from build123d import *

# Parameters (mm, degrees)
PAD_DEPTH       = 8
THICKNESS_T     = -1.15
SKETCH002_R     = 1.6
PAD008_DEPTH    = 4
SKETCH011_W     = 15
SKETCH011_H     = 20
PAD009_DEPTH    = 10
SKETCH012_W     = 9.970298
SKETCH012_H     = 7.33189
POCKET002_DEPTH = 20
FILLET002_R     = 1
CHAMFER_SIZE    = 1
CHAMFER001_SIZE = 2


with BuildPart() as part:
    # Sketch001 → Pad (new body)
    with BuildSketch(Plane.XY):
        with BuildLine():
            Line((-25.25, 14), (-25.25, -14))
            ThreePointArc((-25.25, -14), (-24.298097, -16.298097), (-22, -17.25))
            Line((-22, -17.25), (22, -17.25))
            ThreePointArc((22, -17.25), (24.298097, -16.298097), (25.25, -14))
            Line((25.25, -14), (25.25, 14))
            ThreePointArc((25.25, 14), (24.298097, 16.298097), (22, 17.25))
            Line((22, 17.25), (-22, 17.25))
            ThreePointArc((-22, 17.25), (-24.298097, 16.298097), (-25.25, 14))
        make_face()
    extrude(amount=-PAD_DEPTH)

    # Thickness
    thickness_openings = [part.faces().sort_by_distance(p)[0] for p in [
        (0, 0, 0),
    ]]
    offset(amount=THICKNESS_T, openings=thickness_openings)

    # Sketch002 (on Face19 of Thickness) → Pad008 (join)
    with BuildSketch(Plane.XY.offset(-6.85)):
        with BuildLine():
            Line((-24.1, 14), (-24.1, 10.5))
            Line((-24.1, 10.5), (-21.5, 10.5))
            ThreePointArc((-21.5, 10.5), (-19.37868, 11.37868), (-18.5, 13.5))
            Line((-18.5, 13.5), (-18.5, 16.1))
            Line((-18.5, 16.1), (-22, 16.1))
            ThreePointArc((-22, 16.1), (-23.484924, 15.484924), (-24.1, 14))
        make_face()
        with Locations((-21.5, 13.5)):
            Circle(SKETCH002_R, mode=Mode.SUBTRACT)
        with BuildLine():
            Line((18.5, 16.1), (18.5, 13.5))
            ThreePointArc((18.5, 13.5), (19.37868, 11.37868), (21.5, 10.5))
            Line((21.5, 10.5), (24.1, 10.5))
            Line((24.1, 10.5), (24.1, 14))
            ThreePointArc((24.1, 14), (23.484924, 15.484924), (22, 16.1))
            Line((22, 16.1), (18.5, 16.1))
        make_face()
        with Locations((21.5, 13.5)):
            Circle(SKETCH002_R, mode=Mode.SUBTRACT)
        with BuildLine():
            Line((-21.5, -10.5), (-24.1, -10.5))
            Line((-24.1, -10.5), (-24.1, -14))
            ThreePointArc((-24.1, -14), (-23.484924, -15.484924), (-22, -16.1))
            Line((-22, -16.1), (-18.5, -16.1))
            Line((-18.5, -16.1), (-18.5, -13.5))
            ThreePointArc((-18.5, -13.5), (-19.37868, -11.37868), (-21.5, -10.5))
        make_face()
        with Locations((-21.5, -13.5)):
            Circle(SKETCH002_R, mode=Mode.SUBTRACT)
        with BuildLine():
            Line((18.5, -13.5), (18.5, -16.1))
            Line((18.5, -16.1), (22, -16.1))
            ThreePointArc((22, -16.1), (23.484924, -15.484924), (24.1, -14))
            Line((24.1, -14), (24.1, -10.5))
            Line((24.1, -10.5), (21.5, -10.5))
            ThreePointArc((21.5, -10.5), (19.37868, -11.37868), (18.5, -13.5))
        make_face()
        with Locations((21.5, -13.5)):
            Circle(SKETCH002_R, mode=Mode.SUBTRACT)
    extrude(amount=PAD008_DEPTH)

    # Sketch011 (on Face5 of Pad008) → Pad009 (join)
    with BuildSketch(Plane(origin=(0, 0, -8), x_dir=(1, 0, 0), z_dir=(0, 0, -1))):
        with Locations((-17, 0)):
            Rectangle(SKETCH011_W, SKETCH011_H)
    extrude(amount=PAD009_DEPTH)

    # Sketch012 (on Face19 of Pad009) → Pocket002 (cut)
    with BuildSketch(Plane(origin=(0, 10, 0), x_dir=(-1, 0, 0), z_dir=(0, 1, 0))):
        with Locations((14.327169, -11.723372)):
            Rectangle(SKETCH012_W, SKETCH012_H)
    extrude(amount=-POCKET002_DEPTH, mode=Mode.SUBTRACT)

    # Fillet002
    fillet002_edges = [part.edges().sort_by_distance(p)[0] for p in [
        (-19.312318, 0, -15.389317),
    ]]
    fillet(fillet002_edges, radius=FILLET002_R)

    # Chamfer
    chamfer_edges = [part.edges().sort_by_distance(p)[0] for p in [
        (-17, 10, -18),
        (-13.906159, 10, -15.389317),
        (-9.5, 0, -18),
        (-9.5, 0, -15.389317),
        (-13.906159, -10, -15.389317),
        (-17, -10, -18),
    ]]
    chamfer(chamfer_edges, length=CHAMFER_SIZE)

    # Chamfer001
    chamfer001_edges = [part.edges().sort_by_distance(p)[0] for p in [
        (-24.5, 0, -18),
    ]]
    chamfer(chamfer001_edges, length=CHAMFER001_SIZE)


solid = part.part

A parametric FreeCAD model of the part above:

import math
import FreeCAD as App
import Part
import Sketcher


def edges_at(feature, points):
    """Names of the edges that pass closest to the given points."""
    edges = feature.Shape.Edges
    near = lambda p: min(range(len(edges)), key=lambda i: edges[i].distToShape(Part.Vertex(*p))[0])
    return sorted({f"Edge{near(p) + 1}" for p in points})


def faces_at(feature, points):
    """Names of the faces that lie closest to the given points."""
    faces = feature.Shape.Faces
    near = lambda p: min(range(len(faces)), key=lambda i: faces[i].distToShape(Part.Vertex(*p))[0])
    return sorted({f"Face{near(p) + 1}" for p in points})


def add_polygon(sketch, points):
    """Adds a closed chain of lines whose ends are joined by coincident constraints."""
    first, n = sketch.GeometryCount, len(points)
    for a, b in zip(points, points[1:] + points[:1]):
        sketch.addGeometry(Part.LineSegment(App.Vector(*a, 0), App.Vector(*b, 0)), False)
    for i in range(n):
        sketch.addConstraint(Sketcher.Constraint("Coincident", first + i, 2, first + (i + 1) % n, 1))

doc = App.newDocument("Part")
body = doc.addObject("PartDesign::Body", "Body")

# Sketch on XY plane
sketch1 = body.newObject("Sketcher::SketchObject", "Sketch")
sketch1.AttachmentSupport = (doc.getObject("XY_Plane"), [""])
sketch1.MapMode = "FlatFace"
sketch1.addGeometry([
    Part.LineSegment(App.Vector(-25.2, 14, 0), App.Vector(-25.2, -14, 0)),  # 0
    Part.ArcOfCircle(Part.Circle(App.Vector(-22, -14, 0), App.Vector(0, 0, 1), 3.3), math.radians(-180), math.radians(-90)),  # 1
    Part.LineSegment(App.Vector(-22, -17.2, 0), App.Vector(22, -17.2, 0)),  # 2
    Part.ArcOfCircle(Part.Circle(App.Vector(22, -14, 0), App.Vector(0, 0, 1), 3.3), math.radians(-90), math.radians(0)),  # 3
    Part.LineSegment(App.Vector(25.2, -14, 0), App.Vector(25.2, 14, 0)),  # 4
    Part.ArcOfCircle(Part.Circle(App.Vector(22, 14, 0), App.Vector(0, 0, 1), 3.3), math.radians(0), math.radians(90)),  # 5
    Part.LineSegment(App.Vector(22, 17.2, 0), App.Vector(-22, 17.2, 0)),  # 6
    Part.ArcOfCircle(Part.Circle(App.Vector(-22, 14, 0), App.Vector(0, 0, 1), 3.3), math.radians(90), math.radians(180)),  # 7
], False)
sketch1.addConstraint([
    Sketcher.Constraint("Tangent", 0, 2, 1, 1),
    Sketcher.Constraint("Tangent", 1, 2, 2, 1),
    Sketcher.Constraint("Tangent", 2, 2, 3, 1),
    Sketcher.Constraint("Tangent", 3, 2, 4, 1),
    Sketcher.Constraint("Tangent", 4, 2, 5, 1),
    Sketcher.Constraint("Tangent", 5, 2, 6, 1),
    Sketcher.Constraint("Tangent", 6, 2, 7, 1),
    Sketcher.Constraint("Tangent", 7, 2, 0, 1),
    Sketcher.Constraint("Vertical", 0),
    Sketcher.Constraint("Horizontal", 2),
    Sketcher.Constraint("Vertical", 4),
    Sketcher.Constraint("Horizontal", 6),
    Sketcher.Constraint("Equal", 1, 3),
    Sketcher.Constraint("Equal", 3, 5),
    Sketcher.Constraint("Equal", 5, 7),
    Sketcher.Constraint("Symmetric", 1, 3, 5, 3, -1, 1),
    Sketcher.Constraint("DistanceX", 2, 1, 2, 2, 44.0),
    Sketcher.Constraint("DistanceY", 0, 2, 0, 1, 28.0),
    Sketcher.Constraint("Radius", 1, 3.25),
])
pad1 = body.newObject("PartDesign::Pad", "Pad")
pad1.Profile = sketch1
pad1.Length = 8
pad1.Reversed = True
doc.recompute()

thickness = body.newObject("PartDesign::Thickness", "Thickness")
thickness.Base = (pad1, faces_at(pad1, [(0, 0, 0)]))
thickness.Value = 1.15
thickness.Reversed = True
thickness.Join = "Arc"

# Sketch on XY plane
sketch2 = body.newObject("Sketcher::SketchObject", "Sketch001")
sketch2.AttachmentSupport = (doc.getObject("XY_Plane"), [""])
sketch2.MapMode = "FlatFace"
sketch2.AttachmentOffset = App.Placement(App.Vector(0, 0, -6.85), App.Rotation())
sketch2.addGeometry([
    Part.LineSegment(App.Vector(-24.1, 14, 0), App.Vector(-24.1, 10.5, 0)),  # 0
    Part.LineSegment(App.Vector(-24.1, 10.5, 0), App.Vector(-21.5, 10.5, 0)),  # 1
    Part.ArcOfCircle(Part.Circle(App.Vector(-21.5, 13.5, 0), App.Vector(0, 0, 1), 3), math.radians(-90), math.radians(0)),  # 2
    Part.LineSegment(App.Vector(-18.5, 13.5, 0), App.Vector(-18.5, 16.1, 0)),  # 3
    Part.LineSegment(App.Vector(-18.5, 16.1, 0), App.Vector(-22, 16.1, 0)),  # 4
    Part.ArcOfCircle(Part.Circle(App.Vector(-22, 14, 0), App.Vector(0, 0, 1), 2.1), math.radians(90), math.radians(180)),  # 5
    Part.Circle(App.Vector(-21.5, 13.5, 0), App.Vector(0, 0, 1), 1.6),  # 6
    Part.LineSegment(App.Vector(18.5, 16.1, 0), App.Vector(18.5, 13.5, 0)),  # 7
    Part.ArcOfCircle(Part.Circle(App.Vector(21.5, 13.5, 0), App.Vector(0, 0, 1), 3), math.radians(-180), math.radians(-90)),  # 8
    Part.LineSegment(App.Vector(21.5, 10.5, 0), App.Vector(24.1, 10.5, 0)),  # 9
    Part.LineSegment(App.Vector(24.1, 10.5, 0), App.Vector(24.1, 14, 0)),  # 10
    Part.ArcOfCircle(Part.Circle(App.Vector(22, 14, 0), App.Vector(0, 0, 1), 2.1), math.radians(0), math.radians(90)),  # 11
    Part.LineSegment(App.Vector(22, 16.1, 0), App.Vector(18.5, 16.1, 0)),  # 12
    Part.Circle(App.Vector(21.5, 13.5, 0), App.Vector(0, 0, 1), 1.6),  # 13
    Part.LineSegment(App.Vector(-21.5, -10.5, 0), App.Vector(-24.1, -10.5, 0)),  # 14
    Part.LineSegment(App.Vector(-24.1, -10.5, 0), App.Vector(-24.1, -14, 0)),  # 15
    Part.ArcOfCircle(Part.Circle(App.Vector(-22, -14, 0), App.Vector(0, 0, 1), 2.1), math.radians(-180), math.radians(-90)),  # 16
    Part.LineSegment(App.Vector(-22, -16.1, 0), App.Vector(-18.5, -16.1, 0)),  # 17
    Part.LineSegment(App.Vector(-18.5, -16.1, 0), App.Vector(-18.5, -13.5, 0)),  # 18
    Part.ArcOfCircle(Part.Circle(App.Vector(-21.5, -13.5, 0), App.Vector(0, 0, 1), 3), math.radians(0), math.radians(90)),  # 19
    Part.Circle(App.Vector(-21.5, -13.5, 0), App.Vector(0, 0, 1), 1.6),  # 20
    Part.LineSegment(App.Vector(18.5, -13.5, 0), App.Vector(18.5, -16.1, 0)),  # 21
    Part.LineSegment(App.Vector(18.5, -16.1, 0), App.Vector(22, -16.1, 0)),  # 22
    Part.ArcOfCircle(Part.Circle(App.Vector(22, -14, 0), App.Vector(0, 0, 1), 2.1), math.radians(-90), math.radians(0)),  # 23
    Part.LineSegment(App.Vector(24.1, -14, 0), App.Vector(24.1, -10.5, 0)),  # 24
    Part.LineSegment(App.Vector(24.1, -10.5, 0), App.Vector(21.5, -10.5, 0)),  # 25
    Part.ArcOfCircle(Part.Circle(App.Vector(21.5, -13.5, 0), App.Vector(0, 0, 1), 3), math.radians(90), math.radians(180)),  # 26
    Part.Circle(App.Vector(21.5, -13.5, 0), App.Vector(0, 0, 1), 1.6),  # 27
], False)
sketch2.addConstraint([
    Sketcher.Constraint("Coincident", 0, 2, 1, 1),
    Sketcher.Constraint("Tangent", 1, 2, 2, 1),
    Sketcher.Constraint("Tangent", 2, 2, 3, 1),
    Sketcher.Constraint("Coincident", 3, 2, 4, 1),
    Sketcher.Constraint("Tangent", 4, 2, 5, 1),
    Sketcher.Constraint("Tangent", 5, 2, 0, 1),
    Sketcher.Constraint("Tangent", 7, 2, 8, 1),
    Sketcher.Constraint("Tangent", 8, 2, 9, 1),
    Sketcher.Constraint("Coincident", 9, 2, 10, 1),
    Sketcher.Constraint("Tangent", 10, 2, 11, 1),
    Sketcher.Constraint("Tangent", 11, 2, 12, 1),
    Sketcher.Constraint("Coincident", 12, 2, 7, 1),
    Sketcher.Constraint("Coincident", 14, 2, 15, 1),
    Sketcher.Constraint("Tangent", 15, 2, 16, 1),
    Sketcher.Constraint("Tangent", 16, 2, 17, 1),
    Sketcher.Constraint("Coincident", 17, 2, 18, 1),
    Sketcher.Constraint("Tangent", 18, 2, 19, 1),
    Sketcher.Constraint("Tangent", 19, 2, 14, 1),
    Sketcher.Constraint("Coincident", 21, 2, 22, 1),
    Sketcher.Constraint("Tangent", 22, 2, 23, 1),
    Sketcher.Constraint("Tangent", 23, 2, 24, 1),
    Sketcher.Constraint("Coincident", 24, 2, 25, 1),
    Sketcher.Constraint("Tangent", 25, 2, 26, 1),
    Sketcher.Constraint("Tangent", 26, 2, 21, 1),
    Sketcher.Constraint("Vertical", 0),
    Sketcher.Constraint("Horizontal", 1),
    Sketcher.Constraint("Vertical", 3),
    Sketcher.Constraint("Horizontal", 4),
    Sketcher.Constraint("Vertical", 7),
    Sketcher.Constraint("Horizontal", 9),
    Sketcher.Constraint("Vertical", 10),
    Sketcher.Constraint("Horizontal", 12),
    Sketcher.Constraint("Horizontal", 14),
    Sketcher.Constraint("Vertical", 15),
    Sketcher.Constraint("Horizontal", 17),
    Sketcher.Constraint("Vertical", 18),
    Sketcher.Constraint("Vertical", 21),
    Sketcher.Constraint("Horizontal", 22),
    Sketcher.Constraint("Vertical", 24),
    Sketcher.Constraint("Horizontal", 25),
    Sketcher.Constraint("Coincident", 6, 3, 2, 3),
    Sketcher.Constraint("Coincident", 13, 3, 8, 3),
    Sketcher.Constraint("Coincident", 20, 3, 19, 3),
    Sketcher.Constraint("Coincident", 27, 3, 26, 3),
    Sketcher.Constraint("Equal", 2, 8),
    Sketcher.Constraint("Equal", 5, 11),
    Sketcher.Constraint("Equal", 6, 13),
    Sketcher.Constraint("Equal", 11, 16),
    Sketcher.Constraint("Equal", 8, 19),
    Sketcher.Constraint("Equal", 13, 20),
    Sketcher.Constraint("Equal", 16, 23),
    Sketcher.Constraint("Equal", 19, 26),
    Sketcher.Constraint("Equal", 20, 27),
    Sketcher.Constraint("Symmetric", 11, 3, 16, 3, -1, 1),
    Sketcher.Constraint("Symmetric", 8, 3, 19, 3, -1, 1),
    Sketcher.Constraint("Symmetric", 5, 3, 23, 3, -1, 1),
    Sketcher.Constraint("Symmetric", 2, 3, 26, 3, -1, 1),
    Sketcher.Constraint("Symmetric", 2, 3, 8, 3, -2),
    Sketcher.Constraint("Symmetric", 5, 3, 11, 3, -2),
    Sketcher.Constraint("Equal", 22, 0),
    Sketcher.Constraint("Radius", 2, 3.000001),
    Sketcher.Constraint("Diameter", 6, 3.2),
    Sketcher.Constraint("Radius", 5, 2.100001),
    Sketcher.Constraint("DistanceX", 1, 1, 1, 2, 2.6),
    Sketcher.Constraint("DistanceX", 5, 3, -1, 1, 21.999999),
    Sketcher.Constraint("DistanceY", -1, 1, 5, 3, 13.999999),
])
pad2 = body.newObject("PartDesign::Pad", "Pad001")
pad2.Profile = sketch2
pad2.Length = 4

# Sketch on XY plane
sketch3 = body.newObject("Sketcher::SketchObject", "Sketch002")
sketch3.AttachmentSupport = (doc.getObject("XY_Plane"), [""])
sketch3.MapMode = "FlatFace"
sketch3.AttachmentOffset = App.Placement(App.Vector(0, 0, -8), App.Rotation())
add_polygon(sketch3, [(-24, -10), (-24, 10), (-10, 10), (-10, -10)])  # lines 0-3
sketch3.addConstraint([
    Sketcher.Constraint("Vertical", 0),
    Sketcher.Constraint("Horizontal", 1),
    Sketcher.Constraint("Vertical", 2),
    Sketcher.Constraint("Horizontal", 3),
    Sketcher.Constraint("DistanceX", 1, 1, 1, 2, 15.0),
    Sketcher.Constraint("DistanceY", 0, 1, 0, 2, 20.0),
    Sketcher.Constraint("DistanceY", -1, 1, 0, 2, 10.0),
    Sketcher.Constraint("DistanceX", 0, 2, -1, 1, 24.5),
])
pad3 = body.newObject("PartDesign::Pad", "Pad002")
pad3.Profile = sketch3
pad3.Length = 10
pad3.Reversed = True

# Sketch on XZ plane
sketch4 = body.newObject("Sketcher::SketchObject", "Sketch003")
sketch4.AttachmentSupport = (doc.getObject("XZ_Plane"), [""])
sketch4.MapMode = "FlatFace"
sketch4.AttachmentOffset = App.Placement(App.Vector(0, 0, -10), App.Rotation())
add_polygon(sketch4, [(-9, -8), (-9, -15), (-19, -15), (-19, -8)])  # lines 0-3
sketch4.addConstraint([
    Sketcher.Constraint("Vertical", 0),
    Sketcher.Constraint("Horizontal", 1),
    Sketcher.Constraint("Vertical", 2),
    Sketcher.Constraint("Horizontal", 3),
    Sketcher.Constraint("DistanceX", 1, 2, 1, 1, 9.970298),
    Sketcher.Constraint("DistanceY", 0, 2, 0, 1, 7.33189),
    Sketcher.Constraint("DistanceX", 0, 2, -1, 1, 9.34202),
    Sketcher.Constraint("DistanceY", 0, 2, -1, 1, 15.389317),
])
pocket1 = body.newObject("PartDesign::Pocket", "Pocket")
pocket1.Profile = sketch4
pocket1.Length = 20
pocket1.Reversed = True
doc.recompute()

fillet = body.newObject("PartDesign::Fillet", "Fillet")
fillet.Base = (pocket1, edges_at(pocket1, [(-19.312, 0, -15.389)]))
fillet.Radius = 1
doc.recompute()

chamfer = body.newObject("PartDesign::Chamfer", "Chamfer")
chamfer.Base = (fillet, edges_at(fillet, [
    (-17, 10, -18),
    (-13.906, 10, -15.389),
    (-9.5, 0, -18),
    (-9.5, 0, -15.389),
    (-13.906, -10, -15.389),
    (-17, -10, -18),
]))
chamfer.Size = 1
doc.recompute()

chamfer2 = body.newObject("PartDesign::Chamfer", "Chamfer001")
chamfer2.Base = (chamfer, edges_at(chamfer, [(-24.5, 0, -18)]))
chamfer2.Size = 2

doc.recompute()
